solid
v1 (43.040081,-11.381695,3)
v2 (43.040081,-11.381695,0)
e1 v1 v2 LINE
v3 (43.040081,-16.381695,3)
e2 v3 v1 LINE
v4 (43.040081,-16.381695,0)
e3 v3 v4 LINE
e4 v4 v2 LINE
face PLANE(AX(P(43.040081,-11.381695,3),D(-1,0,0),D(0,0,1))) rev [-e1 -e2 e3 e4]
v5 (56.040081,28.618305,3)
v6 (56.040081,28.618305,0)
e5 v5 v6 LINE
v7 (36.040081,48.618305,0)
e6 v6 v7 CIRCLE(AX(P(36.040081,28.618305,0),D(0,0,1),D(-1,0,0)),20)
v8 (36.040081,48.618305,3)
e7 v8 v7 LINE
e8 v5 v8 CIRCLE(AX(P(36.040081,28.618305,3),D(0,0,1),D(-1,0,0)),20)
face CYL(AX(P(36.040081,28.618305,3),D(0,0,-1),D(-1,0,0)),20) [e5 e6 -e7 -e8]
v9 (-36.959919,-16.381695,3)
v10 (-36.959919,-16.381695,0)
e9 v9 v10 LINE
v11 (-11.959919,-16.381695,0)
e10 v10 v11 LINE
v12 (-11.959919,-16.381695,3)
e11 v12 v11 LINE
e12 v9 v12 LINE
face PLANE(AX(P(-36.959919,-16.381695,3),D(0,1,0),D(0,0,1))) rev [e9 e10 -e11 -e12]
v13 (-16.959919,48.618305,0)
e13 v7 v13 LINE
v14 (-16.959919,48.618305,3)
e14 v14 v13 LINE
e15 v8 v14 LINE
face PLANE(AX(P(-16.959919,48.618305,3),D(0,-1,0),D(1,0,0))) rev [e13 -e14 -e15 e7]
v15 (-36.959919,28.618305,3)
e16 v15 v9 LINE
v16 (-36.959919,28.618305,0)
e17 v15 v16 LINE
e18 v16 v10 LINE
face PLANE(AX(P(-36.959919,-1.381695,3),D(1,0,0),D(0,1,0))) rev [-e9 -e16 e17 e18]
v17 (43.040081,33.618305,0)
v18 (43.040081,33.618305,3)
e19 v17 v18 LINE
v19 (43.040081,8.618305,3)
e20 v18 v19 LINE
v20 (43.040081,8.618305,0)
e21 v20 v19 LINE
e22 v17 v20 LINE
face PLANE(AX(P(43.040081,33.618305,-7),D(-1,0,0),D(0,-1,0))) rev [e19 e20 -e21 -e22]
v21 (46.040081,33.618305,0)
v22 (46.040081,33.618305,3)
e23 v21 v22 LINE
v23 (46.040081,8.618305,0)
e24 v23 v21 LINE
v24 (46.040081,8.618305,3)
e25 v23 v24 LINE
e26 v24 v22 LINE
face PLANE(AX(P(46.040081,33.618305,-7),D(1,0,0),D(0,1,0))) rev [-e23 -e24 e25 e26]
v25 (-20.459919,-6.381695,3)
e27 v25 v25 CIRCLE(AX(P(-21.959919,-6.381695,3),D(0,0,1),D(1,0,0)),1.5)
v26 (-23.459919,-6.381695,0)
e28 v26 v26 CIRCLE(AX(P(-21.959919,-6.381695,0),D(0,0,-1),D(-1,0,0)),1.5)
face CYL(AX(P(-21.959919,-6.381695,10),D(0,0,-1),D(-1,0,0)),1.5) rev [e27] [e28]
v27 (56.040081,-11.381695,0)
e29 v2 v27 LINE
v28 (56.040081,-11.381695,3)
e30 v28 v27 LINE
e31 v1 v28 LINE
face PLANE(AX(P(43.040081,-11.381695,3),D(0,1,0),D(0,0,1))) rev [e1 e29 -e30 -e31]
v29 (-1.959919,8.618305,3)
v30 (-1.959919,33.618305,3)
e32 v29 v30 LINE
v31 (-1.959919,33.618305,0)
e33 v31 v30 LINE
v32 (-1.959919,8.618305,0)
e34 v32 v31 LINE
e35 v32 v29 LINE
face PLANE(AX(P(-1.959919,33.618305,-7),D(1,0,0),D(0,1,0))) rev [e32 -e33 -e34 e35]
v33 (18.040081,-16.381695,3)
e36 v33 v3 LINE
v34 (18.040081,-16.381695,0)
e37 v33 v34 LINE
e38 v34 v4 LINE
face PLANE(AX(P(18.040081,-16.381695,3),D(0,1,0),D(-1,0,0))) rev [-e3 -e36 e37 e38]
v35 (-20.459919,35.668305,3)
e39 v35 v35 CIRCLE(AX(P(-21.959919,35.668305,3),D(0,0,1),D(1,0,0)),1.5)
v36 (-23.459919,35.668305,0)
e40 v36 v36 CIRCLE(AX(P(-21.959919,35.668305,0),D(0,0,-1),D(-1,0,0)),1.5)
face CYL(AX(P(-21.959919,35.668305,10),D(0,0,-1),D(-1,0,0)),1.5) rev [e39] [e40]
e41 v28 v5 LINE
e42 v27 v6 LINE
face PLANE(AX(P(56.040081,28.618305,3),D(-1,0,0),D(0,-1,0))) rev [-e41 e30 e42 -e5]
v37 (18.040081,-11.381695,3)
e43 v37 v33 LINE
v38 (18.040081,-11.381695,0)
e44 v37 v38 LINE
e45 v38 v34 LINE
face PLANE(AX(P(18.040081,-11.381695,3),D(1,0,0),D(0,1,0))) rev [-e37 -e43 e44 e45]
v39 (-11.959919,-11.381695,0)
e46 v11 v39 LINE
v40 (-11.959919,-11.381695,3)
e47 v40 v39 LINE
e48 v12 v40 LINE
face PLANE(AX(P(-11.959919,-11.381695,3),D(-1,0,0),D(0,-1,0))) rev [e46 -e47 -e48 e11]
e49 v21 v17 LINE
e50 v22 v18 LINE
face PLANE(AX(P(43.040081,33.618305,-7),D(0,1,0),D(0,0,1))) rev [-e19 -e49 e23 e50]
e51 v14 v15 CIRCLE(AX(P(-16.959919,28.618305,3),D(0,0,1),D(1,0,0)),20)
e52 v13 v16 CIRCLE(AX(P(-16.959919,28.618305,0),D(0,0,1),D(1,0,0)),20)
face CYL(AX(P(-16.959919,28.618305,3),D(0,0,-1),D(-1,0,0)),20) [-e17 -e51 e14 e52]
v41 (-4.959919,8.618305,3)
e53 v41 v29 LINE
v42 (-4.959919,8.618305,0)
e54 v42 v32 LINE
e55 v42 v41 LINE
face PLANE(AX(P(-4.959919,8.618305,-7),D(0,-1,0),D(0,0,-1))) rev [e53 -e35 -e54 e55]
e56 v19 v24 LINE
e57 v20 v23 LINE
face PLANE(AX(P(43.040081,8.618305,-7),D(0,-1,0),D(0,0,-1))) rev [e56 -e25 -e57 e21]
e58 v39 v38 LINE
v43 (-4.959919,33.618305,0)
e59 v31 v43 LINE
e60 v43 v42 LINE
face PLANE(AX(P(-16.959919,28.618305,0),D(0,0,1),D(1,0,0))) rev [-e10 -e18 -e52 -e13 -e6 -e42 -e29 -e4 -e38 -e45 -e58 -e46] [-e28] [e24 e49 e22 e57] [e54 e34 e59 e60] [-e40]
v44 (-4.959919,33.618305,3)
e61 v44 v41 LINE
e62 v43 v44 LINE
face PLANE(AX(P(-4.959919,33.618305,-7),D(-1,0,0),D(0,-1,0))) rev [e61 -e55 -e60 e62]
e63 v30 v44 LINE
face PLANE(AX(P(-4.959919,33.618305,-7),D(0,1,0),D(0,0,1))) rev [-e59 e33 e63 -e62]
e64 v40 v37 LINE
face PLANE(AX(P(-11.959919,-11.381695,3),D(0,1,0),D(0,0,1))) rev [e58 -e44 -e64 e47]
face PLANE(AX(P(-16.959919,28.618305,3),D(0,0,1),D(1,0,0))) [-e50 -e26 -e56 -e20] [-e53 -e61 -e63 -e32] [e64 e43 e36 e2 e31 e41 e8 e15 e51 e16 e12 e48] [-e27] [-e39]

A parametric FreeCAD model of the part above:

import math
import FreeCAD as App
import Part
import Sketcher

V = App.Vector

doc = App.newDocument("Part")
body = doc.addObject("PartDesign::Body", "Body")

# Sketch on XY plane
sketch1 = body.newObject("Sketcher::SketchObject", "Sketch")
sketch1.AttachmentSupport = (doc.getObject("XY_Plane"), [""])
sketch1.MapMode = "FlatFace"
sketch1.addGeometry([
    Part.LineSegment(V(43.040081, -11.381695, 0), V(56.040081, -11.381695, 0)),  # 0
    Part.LineSegment(V(56.040081, -11.381695, 0), V(56.040081, 28.618305, 0)),  # 1
    Part.ArcOfCircle(Part.Circle(V(36.040081, 28.618305, 0), V(0, 0, 1), 20), math.radians(0), math.radians(90)),  # 2
    Part.LineSegment(V(36.040081, 48.618305, 0), V(-16.959919, 48.618305, 0)),  # 3
    Part.ArcOfCircle(Part.Circle(V(-16.959919, 28.618305, 0), V(0, 0, 1), 20), math.radians(90), math.radians(180)),  # 4
    Part.LineSegment(V(-36.959919, 28.618305, 0), V(-36.959919, -16.381695, 0)),  # 5
    Part.LineSegment(V(-36.959919, -16.381695, 0), V(-11.959919, -16.381695, 0)),  # 6
    Part.LineSegment(V(-11.959919, -16.381695, 0), V(-11.959919, -11.381695, 0)),  # 7
    Part.LineSegment(V(-11.959919, -11.381695, 0), V(18.040081, -11.381695, 0)),  # 8
    Part.LineSegment(V(18.040081, -11.381695, 0), V(18.040081, -16.381695, 0)),  # 9
    Part.LineSegment(V(18.040081, -16.381695, 0), V(43.040081, -16.381695, 0)),  # 10
    Part.LineSegment(V(43.040081, -16.381695, 0), V(43.040081, -11.381695, 0)),  # 11
], False)
sketch1.addConstraint([
    Sketcher.Constraint("Coincident", 0, 2, 1, 1),
    Sketcher.Constraint("Tangent", 1, 2, 2, 1),
    Sketcher.Constraint("Tangent", 2, 2, 3, 1),
    Sketcher.Constraint("Tangent", 3, 2, 4, 1),
    Sketcher.Constraint("Tangent", 4, 2, 5, 1),
    Sketcher.Constraint("Coincident", 5, 2, 6, 1),
    Sketcher.Constraint("Coincident", 6, 2, 7, 1),
    Sketcher.Constraint("Coincident", 7, 2, 8, 1),
    Sketcher.Constraint("Coincident", 8, 2, 9, 1),
    Sketcher.Constraint("Coincident", 9, 2, 10, 1),
    Sketcher.Constraint("Coincident", 10, 2, 11, 1),
    Sketcher.Constraint("Coincident", 11, 2, 0, 1),
    Sketcher.Constraint("Horizontal", 0),
    Sketcher.Constraint("Vertical", 1),
    Sketcher.Constraint("Horizontal", 3),
    Sketcher.Constraint("Vertical", 5),
    Sketcher.Constraint("Horizontal", 6),
    Sketcher.Constraint("Vertical", 7),
    Sketcher.Constraint("Horizontal", 8),
    Sketcher.Constraint("Vertical", 9),
    Sketcher.Constraint("Horizontal", 10),
    Sketcher.Constraint("Vertical", 11),
    Sketcher.Constraint("Equal", 2, 4),
    Sketcher.Constraint("Horizontal", 0, 2, 7, 2),
    Sketcher.Constraint("Horizontal", 6, 2, 9, 2),
    Sketcher.Constraint("Equal", 6, 10),
    Sketcher.Constraint("Radius", 2, 20.0),
    Sketcher.Constraint("DistanceX", 0, 1, 0, 2, 13.0),
    Sketcher.Constraint("DistanceX", 3, 2, 3, 1, 53.0),
    Sketcher.Constraint("DistanceX", 6, 1, 6, 2, 25.0),
    Sketcher.Constraint("DistanceY", 1, 1, 1, 2, 40.0),
    Sketcher.Constraint("DistanceY", 5, 2, 5, 1, 45.0),
    Sketcher.Constraint("DistanceX", -1, 1, 2, 3, 36.040081),
    Sketcher.Constraint("DistanceY", -1, 1, 2, 3, 28.618305),
])
pad1 = body.newObject("PartDesign::Pad", "Pad")
pad1.Profile = sketch1
pad1.Length = 3

# Sketch on XY plane
sketch2 = body.newObject("Sketcher::SketchObject", "Sketch001")
sketch2.AttachmentSupport = (doc.getObject("XY_Plane"), [""])
sketch2.MapMode = "FlatFace"
sketch2.addGeometry([
    Part.Circle(V(-21.959919, 35.668305, 0), V(0, 0, 1), 1.5),
    Part.Circle(V(-21.959919, -6.381695, 0), V(0, 0, 1), 1.5),
], False)
sketch2.addConstraint([
    Sketcher.Constraint("Equal", 0, 1),
    Sketcher.Constraint("Vertical", 0, 3, 1, 3),
    Sketcher.Constraint("Diameter", 0, 3.0),
    Sketcher.Constraint("DistanceY", 1, 3, 0, 3, 42.05),
    Sketcher.Constraint("DistanceX", 0, 3, -1, 1, 21.959919),
    Sketcher.Constraint("DistanceY", -1, 1, 0, 3, 35.668305),
])
pocket1 = body.newObject("PartDesign::Pocket", "Pocket")
pocket1.Profile = sketch2
pocket1.Length = 10
pocket1.Reversed = True

# Sketch on XY plane
sketch3 = body.newObject("Sketcher::SketchObject", "Sketch002")
sketch3.AttachmentSupport = (doc.getObject("XY_Plane"), [""])
sketch3.MapMode = "FlatFace"
sketch3.AttachmentOffset = App.Placement(V(0, 0, 3), App.Rotation())
sketch3.addGeometry([
    Part.LineSegment(V(-4.959919, 33.618305, 0), V(-4.959919, 8.618305, 0)),  # 0
    Part.LineSegment(V(-4.959919, 8.618305, 0), V(-1.959919, 8.618305, 0)),  # 1
    Part.LineSegment(V(-1.959919, 8.618305, 0), V(-1.959919, 33.618305, 0)),  # 2
    Part.LineSegment(V(-1.959919, 33.618305, 0), V(-4.959919, 33.618305, 0)),  # 3
    Part.LineSegment(V(43.040081, 33.618305, 0), V(43.040081, 8.618305, 0)),  # 4
    Part.LineSegment(V(43.040081, 8.618305, 0), V(46.040081, 8.618305, 0)),  # 5
    Part.LineSegment(V(46.040081, 8.618305, 0), V(46.040081, 33.618305, 0)),  # 6
    Part.LineSegment(V(46.040081, 33.618305, 0), V(43.040081, 33.618305, 0)),  # 7
], False)
sketch3.addConstraint([
    Sketcher.Constraint("Coincident", 0, 2, 1, 1),
    Sketcher.Constraint("Coincident", 1, 2, 2, 1),
    Sketcher.Constraint("Coincident", 2, 2, 3, 1),
    Sketcher.Constraint("Coincident", 3, 2, 0, 1),
    Sketcher.Constraint("Coincident", 4, 2, 5, 1),
    Sketcher.Constraint("Coincident", 5, 2, 6, 1),
    Sketcher.Constraint("Coincident", 6, 2, 7, 1),
    Sketcher.Constraint("Coincident", 7, 2, 4, 1),
    Sketcher.Constraint("Vertical", 0),
    Sketcher.Constraint("Horizontal", 1),
    Sketcher.Constraint("Vertical", 2),
    Sketcher.Constraint("Horizontal", 3),
    Sketcher.Constraint("Vertical", 4),
    Sketcher.Constraint("Horizontal", 5),
    Sketcher.Constraint("Vertical", 6),
    Sketcher.Constraint("Horizontal", 7),
    Sketcher.Constraint("Horizontal", 1, 2, 4, 2),
    Sketcher.Constraint("Horizontal", 3, 2, 6, 2),
    Sketcher.Constraint("Equal", 3, 5),
    Sketcher.Constraint("DistanceX", 1, 1, 1, 2, 3.0),
    Sketcher.Constraint("DistanceY", 0, 2, 0, 1, 25.0),
    Sketcher.Constraint("DistanceX", 1, 2, 4, 2, 45.0),
    Sketcher.Constraint("DistanceX", 0, 2, -1, 1, 4.959919),
    Sketcher.Constraint("DistanceY", -1, 1, 0, 2, 8.618305),
])
pocket2 = body.newObject("PartDesign::Pocket", "Pocket001")
pocket2.Profile = sketch3
pocket2.Length = 10

doc.recompute()
